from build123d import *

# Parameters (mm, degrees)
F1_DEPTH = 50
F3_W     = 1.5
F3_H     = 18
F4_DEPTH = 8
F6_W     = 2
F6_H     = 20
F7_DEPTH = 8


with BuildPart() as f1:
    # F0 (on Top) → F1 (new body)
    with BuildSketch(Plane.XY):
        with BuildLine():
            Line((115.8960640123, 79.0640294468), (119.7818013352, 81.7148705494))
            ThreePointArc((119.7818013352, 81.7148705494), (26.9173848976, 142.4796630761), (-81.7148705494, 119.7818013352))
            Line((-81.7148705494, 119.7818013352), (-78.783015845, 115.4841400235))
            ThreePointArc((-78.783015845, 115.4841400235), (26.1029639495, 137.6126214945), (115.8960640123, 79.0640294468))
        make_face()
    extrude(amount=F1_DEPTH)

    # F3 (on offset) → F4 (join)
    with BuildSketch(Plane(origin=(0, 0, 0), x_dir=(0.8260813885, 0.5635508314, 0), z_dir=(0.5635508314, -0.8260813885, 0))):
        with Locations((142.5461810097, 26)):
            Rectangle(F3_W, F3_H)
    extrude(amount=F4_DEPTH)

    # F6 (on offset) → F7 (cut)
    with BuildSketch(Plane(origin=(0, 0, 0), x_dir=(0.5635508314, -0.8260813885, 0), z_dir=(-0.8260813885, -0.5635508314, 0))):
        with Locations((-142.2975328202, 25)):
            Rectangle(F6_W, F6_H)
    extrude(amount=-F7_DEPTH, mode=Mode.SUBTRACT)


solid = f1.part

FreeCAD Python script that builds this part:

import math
import FreeCAD as App
import Part
import Sketcher

V = App.Vector


def add_polygon(sketch, points):
    """Adds a closed chain of lines whose ends are joined by coincident constraints."""
    first, n = sketch.GeometryCount, len(points)
    for a, b in zip(points, points[1:] + points[:1]):
        sketch.addGeometry(Part.LineSegment(App.Vector(*a, 0), App.Vector(*b, 0)), False)
    for i in range(n):
        sketch.addConstraint(Sketcher.Constraint("Coincident", first + i, 2, first + (i + 1) % n, 1))

doc = App.newDocument("Part")
body = doc.addObject("PartDesign::Body", "Body")

# Sketch on XY plane
sketch1 = body.newObject("Sketcher::SketchObject", "Sketch")
sketch1.AttachmentSupport = (doc.getObject("XY_Plane"), [""])
sketch1.MapMode = "FlatFace"
sketch1.addGeometry([
    Part.LineSegment(V(115.896064, 79.064029, 0), V(119.781801, 81.714871, 0)),
    Part.ArcOfCircle(Part.Circle(V(0, 0, 0), V(0, 0, 1), 145), math.radians(34.301719), math.radians(124.301719)),
    Part.LineSegment(V(-81.714871, 119.781801, 0), V(-78.783016, 115.48414, 0)),
    Part.ArcOfCircle(Part.Circle(V(0.358714, 0, 0), V(0, 0, 1), 140), math.radians(34.384451), math.radians(124.422992)),
], False)
sketch1.addConstraint([
    Sketcher.Constraint("Coincident", 0, 2, 1, 1),
    Sketcher.Constraint("Coincident", 1, 2, 2, 1),
    Sketcher.Constraint("Coincident", 2, 2, 3, 2),
    Sketcher.Constraint("Coincident", 3, 1, 0, 1),
    Sketcher.Constraint("Coincident", 1, 3, -1, 1),
    Sketcher.Constraint("PointOnObject", 3, 3, -1),
    Sketcher.Constraint("Perpendicular", 0, 2),
    Sketcher.Constraint("Radius", 1, 145.0),
    Sketcher.Constraint("Radius", 3, 140.0),
    Sketcher.Constraint("DistanceX", -1, 1, 0, 2, 119.781801),
    Sketcher.Constraint("DistanceY", -1, 1, 1, 2, 119.781801),
    Sketcher.Constraint("Distance", 0, 4.703819),
    Sketcher.Constraint("DistanceY", -1, 1, 2, 2, 115.48414),
])
pad1 = body.newObject("PartDesign::Pad", "Pad")
pad1.Profile = sketch1
pad1.Length = 50

# Sketch on an angled plane
sketch2 = body.newObject("Sketcher::SketchObject", "Sketch001")
sketch2.Placement = App.Placement(V(0, 0, 0), App.Rotation(V(0.826081389, 0.563550831, 0), V(0, 0, 1), V(0.563550831, -0.826081389, 0), "ZXY"))
add_polygon(sketch2, [(141.796181, 35), (141.796181, 17), (143.296181, 17), (143.296181, 35)])  # lines 0-3
sketch2.addConstraint([
    Sketcher.Constraint("Vertical", 0),
    Sketcher.Constraint("Horizontal", 1),
    Sketcher.Constraint("Vertical", 2),
    Sketcher.Constraint("Horizontal", 3),
    Sketcher.Constraint("DistanceY", 0, 2, 0, 1, 18.0),
    Sketcher.Constraint("DistanceX", 1, 1, 1, 2, 1.5),
    Sketcher.Constraint("DistanceY", -1, 1, 0, 2, 17.0),
    Sketcher.Constraint("DistanceX", -1, 1, 0, 2, 141.796181),
])
pad2 = body.newObject("PartDesign::Pad", "Pad001")
pad2.Profile = sketch2
pad2.Length = 8

# Sketch on an angled plane
sketch3 = body.newObject("Sketcher::SketchObject", "Sketch002")
sketch3.Placement = App.Placement(V(0, 0, 0), App.Rotation(V(0.563550831, -0.826081389, 0), V(0, 0, 1), V(-0.826081389, -0.563550831, 0), "ZXY"))
add_polygon(sketch3, [(-143.297533, 35), (-143.297533, 15), (-141.297533, 15), (-141.297533, 35)])  # lines 0-3
sketch3.addConstraint([
    Sketcher.Constraint("Vertical", 0),
    Sketcher.Constraint("Horizontal", 1),
    Sketcher.Constraint("Vertical", 2),
    Sketcher.Constraint("Horizontal", 3),
    Sketcher.Constraint("DistanceX", 1, 1, 1, 2, 2.0),
    Sketcher.Constraint("DistanceY", 0, 2, 0, 1, 20.0),
    Sketcher.Constraint("DistanceY", -1, 1, 0, 2, 15.0),
    Sketcher.Constraint("DistanceX", 0, 2, -1, 1, 143.297533),
])
pocket1 = body.newObject("PartDesign::Pocket", "Pocket")
pocket1.Profile = sketch3
pocket1.Length = 8

doc.recompute()
